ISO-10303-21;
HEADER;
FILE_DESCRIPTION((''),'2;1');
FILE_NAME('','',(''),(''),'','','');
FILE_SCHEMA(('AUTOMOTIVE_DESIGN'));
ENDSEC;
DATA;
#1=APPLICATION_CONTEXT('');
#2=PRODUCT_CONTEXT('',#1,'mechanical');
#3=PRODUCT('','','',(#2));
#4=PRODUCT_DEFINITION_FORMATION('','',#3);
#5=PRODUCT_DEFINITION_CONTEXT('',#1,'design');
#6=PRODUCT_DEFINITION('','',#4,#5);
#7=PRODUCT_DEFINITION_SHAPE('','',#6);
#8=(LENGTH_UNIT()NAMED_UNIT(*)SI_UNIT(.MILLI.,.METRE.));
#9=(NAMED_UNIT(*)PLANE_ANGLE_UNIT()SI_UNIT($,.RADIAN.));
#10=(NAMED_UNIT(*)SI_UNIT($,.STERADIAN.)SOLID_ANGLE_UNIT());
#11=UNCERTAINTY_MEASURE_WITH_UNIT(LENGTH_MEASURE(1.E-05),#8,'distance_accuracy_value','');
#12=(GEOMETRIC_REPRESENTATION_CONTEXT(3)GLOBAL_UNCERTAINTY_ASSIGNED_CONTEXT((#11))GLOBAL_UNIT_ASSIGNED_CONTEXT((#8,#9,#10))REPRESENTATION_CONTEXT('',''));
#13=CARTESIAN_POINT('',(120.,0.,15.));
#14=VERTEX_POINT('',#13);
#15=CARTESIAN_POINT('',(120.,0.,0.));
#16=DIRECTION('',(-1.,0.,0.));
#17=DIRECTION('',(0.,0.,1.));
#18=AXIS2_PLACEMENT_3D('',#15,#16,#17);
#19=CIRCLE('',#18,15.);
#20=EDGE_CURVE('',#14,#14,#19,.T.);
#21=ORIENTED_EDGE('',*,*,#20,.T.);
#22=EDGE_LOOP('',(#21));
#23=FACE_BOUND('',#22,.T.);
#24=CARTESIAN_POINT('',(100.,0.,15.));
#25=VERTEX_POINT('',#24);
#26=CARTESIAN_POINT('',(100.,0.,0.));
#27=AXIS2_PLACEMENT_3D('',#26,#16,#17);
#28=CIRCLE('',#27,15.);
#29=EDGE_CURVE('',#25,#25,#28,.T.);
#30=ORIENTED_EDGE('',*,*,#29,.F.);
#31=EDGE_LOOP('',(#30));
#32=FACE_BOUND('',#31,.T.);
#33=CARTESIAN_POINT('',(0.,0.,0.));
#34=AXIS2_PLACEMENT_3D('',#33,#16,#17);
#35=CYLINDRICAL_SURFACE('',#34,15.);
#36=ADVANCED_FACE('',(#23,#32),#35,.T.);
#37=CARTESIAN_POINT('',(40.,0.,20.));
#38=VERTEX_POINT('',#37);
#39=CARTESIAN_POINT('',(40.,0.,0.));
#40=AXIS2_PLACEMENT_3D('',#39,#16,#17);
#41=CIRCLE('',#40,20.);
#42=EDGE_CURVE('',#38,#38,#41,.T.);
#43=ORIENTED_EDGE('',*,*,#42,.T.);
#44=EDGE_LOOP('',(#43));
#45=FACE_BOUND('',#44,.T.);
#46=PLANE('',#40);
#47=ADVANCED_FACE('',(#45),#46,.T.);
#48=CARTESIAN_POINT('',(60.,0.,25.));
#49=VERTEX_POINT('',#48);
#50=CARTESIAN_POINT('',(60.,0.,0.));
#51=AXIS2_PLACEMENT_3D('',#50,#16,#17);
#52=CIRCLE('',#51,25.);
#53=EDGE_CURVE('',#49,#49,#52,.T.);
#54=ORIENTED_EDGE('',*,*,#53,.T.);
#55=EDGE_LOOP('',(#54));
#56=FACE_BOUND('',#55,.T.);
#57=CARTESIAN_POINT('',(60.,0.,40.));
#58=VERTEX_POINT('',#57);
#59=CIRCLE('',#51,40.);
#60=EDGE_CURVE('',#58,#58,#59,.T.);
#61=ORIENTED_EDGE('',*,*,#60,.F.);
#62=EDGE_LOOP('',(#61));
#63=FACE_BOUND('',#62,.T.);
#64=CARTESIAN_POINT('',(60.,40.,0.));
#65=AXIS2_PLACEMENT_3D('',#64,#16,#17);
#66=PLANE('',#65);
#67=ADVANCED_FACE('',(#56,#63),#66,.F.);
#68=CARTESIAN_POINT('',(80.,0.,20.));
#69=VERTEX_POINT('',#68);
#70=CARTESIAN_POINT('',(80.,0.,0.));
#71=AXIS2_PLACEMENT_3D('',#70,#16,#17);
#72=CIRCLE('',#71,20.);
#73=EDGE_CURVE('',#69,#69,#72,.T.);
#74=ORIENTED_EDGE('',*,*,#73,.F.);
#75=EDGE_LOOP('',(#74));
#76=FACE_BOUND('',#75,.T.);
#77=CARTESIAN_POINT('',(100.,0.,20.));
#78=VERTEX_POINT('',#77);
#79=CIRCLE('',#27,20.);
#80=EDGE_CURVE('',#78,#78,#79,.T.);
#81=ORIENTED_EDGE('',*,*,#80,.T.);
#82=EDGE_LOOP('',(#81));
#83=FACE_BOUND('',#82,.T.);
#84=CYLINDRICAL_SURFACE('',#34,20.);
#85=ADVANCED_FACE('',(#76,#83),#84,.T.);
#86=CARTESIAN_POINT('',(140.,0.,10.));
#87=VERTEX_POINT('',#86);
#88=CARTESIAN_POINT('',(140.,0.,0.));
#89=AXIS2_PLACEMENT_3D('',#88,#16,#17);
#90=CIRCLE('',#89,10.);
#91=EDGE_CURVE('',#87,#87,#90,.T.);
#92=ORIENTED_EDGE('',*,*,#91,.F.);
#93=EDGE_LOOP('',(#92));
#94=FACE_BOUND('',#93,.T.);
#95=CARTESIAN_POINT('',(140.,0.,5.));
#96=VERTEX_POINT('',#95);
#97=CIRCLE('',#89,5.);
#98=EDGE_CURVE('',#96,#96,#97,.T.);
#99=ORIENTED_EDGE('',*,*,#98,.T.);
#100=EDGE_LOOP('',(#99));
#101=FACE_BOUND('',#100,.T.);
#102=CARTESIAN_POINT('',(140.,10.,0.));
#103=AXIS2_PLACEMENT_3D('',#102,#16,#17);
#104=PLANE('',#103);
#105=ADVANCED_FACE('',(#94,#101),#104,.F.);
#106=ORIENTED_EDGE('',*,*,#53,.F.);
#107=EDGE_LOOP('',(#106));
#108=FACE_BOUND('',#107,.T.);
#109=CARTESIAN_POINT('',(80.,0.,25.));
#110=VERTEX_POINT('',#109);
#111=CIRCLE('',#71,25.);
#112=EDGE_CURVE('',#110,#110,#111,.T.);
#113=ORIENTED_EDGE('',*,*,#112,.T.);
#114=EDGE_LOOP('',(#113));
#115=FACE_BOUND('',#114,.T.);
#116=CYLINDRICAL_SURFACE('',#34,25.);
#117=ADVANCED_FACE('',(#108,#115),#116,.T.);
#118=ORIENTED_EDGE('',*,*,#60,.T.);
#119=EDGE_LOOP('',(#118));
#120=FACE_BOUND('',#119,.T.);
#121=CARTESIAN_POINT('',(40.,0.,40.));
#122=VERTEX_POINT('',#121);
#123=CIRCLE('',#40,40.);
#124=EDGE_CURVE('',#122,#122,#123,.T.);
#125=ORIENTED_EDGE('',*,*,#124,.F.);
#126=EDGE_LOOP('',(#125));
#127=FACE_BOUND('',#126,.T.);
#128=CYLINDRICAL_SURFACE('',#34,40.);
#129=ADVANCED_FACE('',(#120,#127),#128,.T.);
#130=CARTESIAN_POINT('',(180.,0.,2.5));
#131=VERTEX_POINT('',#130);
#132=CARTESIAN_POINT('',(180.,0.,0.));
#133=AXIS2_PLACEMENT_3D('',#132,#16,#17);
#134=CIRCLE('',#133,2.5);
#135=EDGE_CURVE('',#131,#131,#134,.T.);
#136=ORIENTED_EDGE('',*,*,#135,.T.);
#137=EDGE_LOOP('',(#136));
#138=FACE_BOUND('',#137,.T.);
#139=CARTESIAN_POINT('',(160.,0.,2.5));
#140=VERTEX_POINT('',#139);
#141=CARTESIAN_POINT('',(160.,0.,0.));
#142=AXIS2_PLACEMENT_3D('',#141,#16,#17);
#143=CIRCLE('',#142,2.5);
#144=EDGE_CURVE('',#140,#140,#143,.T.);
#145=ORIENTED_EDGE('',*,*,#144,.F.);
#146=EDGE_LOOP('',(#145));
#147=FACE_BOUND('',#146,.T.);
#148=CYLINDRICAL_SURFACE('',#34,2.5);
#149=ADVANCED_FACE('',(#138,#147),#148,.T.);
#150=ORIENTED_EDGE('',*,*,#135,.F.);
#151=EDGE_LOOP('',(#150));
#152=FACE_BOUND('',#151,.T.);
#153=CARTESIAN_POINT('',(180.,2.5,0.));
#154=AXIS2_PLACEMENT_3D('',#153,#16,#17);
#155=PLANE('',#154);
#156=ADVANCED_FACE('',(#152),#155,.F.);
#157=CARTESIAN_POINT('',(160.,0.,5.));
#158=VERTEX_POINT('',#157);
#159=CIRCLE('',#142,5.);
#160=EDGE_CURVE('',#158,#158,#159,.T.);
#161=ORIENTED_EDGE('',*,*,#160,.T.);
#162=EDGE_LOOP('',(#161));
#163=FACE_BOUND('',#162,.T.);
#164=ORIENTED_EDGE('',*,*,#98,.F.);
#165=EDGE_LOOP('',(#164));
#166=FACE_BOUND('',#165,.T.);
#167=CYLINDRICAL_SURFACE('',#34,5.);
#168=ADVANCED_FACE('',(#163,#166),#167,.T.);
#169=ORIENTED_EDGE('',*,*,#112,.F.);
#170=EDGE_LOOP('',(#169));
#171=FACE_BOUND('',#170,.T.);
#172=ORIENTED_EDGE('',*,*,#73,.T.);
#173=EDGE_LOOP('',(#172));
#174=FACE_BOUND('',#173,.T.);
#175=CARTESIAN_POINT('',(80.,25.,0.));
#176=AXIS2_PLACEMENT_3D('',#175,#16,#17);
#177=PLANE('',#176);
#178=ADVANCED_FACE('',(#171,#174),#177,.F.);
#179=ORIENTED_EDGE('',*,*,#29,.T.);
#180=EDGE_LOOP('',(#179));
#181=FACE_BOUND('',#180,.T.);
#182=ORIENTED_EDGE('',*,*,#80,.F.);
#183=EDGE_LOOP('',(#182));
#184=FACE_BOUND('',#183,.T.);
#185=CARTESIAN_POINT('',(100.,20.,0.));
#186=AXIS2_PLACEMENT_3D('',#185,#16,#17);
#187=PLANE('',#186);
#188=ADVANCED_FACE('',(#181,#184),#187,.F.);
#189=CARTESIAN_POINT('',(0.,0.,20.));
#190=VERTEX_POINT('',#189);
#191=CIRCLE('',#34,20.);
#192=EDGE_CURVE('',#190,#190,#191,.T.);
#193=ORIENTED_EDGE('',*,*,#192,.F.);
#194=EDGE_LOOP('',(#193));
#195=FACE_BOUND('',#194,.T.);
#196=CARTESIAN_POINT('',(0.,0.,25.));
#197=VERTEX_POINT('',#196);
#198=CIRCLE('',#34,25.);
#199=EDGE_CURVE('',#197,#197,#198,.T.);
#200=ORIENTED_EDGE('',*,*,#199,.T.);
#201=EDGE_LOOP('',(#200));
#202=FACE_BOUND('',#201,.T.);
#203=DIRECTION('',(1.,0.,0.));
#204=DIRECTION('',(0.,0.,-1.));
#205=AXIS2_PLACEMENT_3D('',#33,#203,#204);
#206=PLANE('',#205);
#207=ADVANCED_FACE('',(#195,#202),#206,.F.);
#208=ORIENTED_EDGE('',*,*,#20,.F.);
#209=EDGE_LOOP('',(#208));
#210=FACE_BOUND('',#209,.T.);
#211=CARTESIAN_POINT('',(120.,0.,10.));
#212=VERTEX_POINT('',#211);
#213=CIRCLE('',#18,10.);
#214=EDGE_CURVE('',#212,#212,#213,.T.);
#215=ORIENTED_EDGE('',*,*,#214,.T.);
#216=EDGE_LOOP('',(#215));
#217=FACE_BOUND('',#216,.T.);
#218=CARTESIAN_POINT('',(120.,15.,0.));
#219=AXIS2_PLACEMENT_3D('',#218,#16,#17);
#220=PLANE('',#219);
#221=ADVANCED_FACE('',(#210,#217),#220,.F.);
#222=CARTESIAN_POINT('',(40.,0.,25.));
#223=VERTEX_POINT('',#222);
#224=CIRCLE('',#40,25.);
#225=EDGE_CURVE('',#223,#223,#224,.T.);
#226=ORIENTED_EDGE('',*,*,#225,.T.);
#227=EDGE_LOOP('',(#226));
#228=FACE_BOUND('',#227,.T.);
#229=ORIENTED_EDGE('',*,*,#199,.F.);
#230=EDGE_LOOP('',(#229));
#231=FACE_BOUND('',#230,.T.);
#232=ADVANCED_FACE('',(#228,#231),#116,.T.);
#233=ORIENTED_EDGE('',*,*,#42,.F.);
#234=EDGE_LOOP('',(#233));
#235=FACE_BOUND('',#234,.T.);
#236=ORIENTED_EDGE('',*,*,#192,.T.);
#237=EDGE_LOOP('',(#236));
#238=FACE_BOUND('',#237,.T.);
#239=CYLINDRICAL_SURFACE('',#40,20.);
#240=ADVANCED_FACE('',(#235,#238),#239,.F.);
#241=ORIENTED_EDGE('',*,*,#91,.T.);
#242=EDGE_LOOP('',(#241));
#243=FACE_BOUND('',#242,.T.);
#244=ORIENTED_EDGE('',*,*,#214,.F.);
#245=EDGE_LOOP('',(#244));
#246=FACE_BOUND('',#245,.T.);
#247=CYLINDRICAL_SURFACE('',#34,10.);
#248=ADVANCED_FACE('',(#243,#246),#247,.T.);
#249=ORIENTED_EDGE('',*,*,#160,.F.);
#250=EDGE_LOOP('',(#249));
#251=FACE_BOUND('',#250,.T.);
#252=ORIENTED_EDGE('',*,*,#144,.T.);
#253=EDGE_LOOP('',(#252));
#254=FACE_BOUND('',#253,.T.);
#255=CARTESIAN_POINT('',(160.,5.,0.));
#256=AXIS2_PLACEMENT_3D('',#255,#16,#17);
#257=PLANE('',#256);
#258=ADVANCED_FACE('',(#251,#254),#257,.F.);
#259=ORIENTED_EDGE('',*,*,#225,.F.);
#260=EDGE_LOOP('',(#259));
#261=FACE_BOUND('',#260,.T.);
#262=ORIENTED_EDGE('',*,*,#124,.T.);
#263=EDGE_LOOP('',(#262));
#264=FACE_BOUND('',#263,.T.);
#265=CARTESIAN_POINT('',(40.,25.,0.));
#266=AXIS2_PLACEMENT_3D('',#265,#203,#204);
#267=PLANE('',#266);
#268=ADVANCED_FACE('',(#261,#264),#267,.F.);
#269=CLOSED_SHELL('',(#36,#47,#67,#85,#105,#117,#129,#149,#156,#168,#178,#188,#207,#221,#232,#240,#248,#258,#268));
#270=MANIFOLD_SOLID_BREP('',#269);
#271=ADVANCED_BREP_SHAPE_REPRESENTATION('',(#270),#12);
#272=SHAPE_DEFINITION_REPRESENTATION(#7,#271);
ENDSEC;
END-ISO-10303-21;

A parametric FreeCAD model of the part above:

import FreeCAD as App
import Part
import Sketcher

V = App.Vector
Q = App.Units.Quantity


def add_polygon(sketch, points):
    """Adds a closed chain of lines whose ends are joined by coincident constraints."""
    first, n = sketch.GeometryCount, len(points)
    for a, b in zip(points, points[1:] + points[:1]):
        sketch.addGeometry(Part.LineSegment(App.Vector(*a, 0), App.Vector(*b, 0)), False)
    for i in range(n):
        sketch.addConstraint(Sketcher.Constraint("Coincident", first + i, 2, first + (i + 1) % n, 1))

doc = App.newDocument("Part")
body = doc.addObject("PartDesign::Body", "Body")

sketch1 = body.newObject("Sketcher::SketchObject", "Sketch")
sketch1.AttachmentSupport = (doc.getObject("XY_Plane"), [""])
sketch1.MapMode = "FlatFace"
add_polygon(sketch1, [(0, 25), (0, 0), (180, 0), (180, 2.5), (160, 2.5), (160, 5), (140, 5), (140, 10), (120, 10), (120, 15), (100, 15), (100, 20), (80, 20), (80, 25), (60, 25), (60, 40), (40, 40), (40, 25)])
sketch1.addConstraint(Sketcher.Constraint("Vertical", 0))
sketch1.addConstraint(Sketcher.Constraint("Horizontal", 1))
sketch1.addConstraint(Sketcher.Constraint("Vertical", 2))
sketch1.addConstraint(Sketcher.Constraint("Horizontal", 3))
sketch1.addConstraint(Sketcher.Constraint("Vertical", 4))
sketch1.addConstraint(Sketcher.Constraint("Horizontal", 5))
sketch1.addConstraint(Sketcher.Constraint("Vertical", 6))
sketch1.addConstraint(Sketcher.Constraint("Horizontal", 7))
sketch1.addConstraint(Sketcher.Constraint("Vertical", 8))
sketch1.addConstraint(Sketcher.Constraint("Horizontal", 9))
sketch1.addConstraint(Sketcher.Constraint("Vertical", 10))
sketch1.addConstraint(Sketcher.Constraint("Horizontal", 11))
sketch1.addConstraint(Sketcher.Constraint("Vertical", 12))
sketch1.addConstraint(Sketcher.Constraint("Horizontal", 13))
sketch1.addConstraint(Sketcher.Constraint("Vertical", 14))
sketch1.addConstraint(Sketcher.Constraint("Horizontal", 15))
sketch1.addConstraint(Sketcher.Constraint("Vertical", 16))
sketch1.addConstraint(Sketcher.Constraint("Horizontal", 17))
sketch1.addConstraint(Sketcher.Constraint("Coincident", 0, 2, -1, 1))
sketch1.addConstraint(Sketcher.Constraint("Horizontal", 13, 2, 16, 2))
sketch1.addConstraint(Sketcher.Constraint("Equal", 3, 5))
sketch1.addConstraint(Sketcher.Constraint("Equal", 5, 7))
sketch1.addConstraint(Sketcher.Constraint("Equal", 7, 9))
sketch1.addConstraint(Sketcher.Constraint("Equal", 9, 11))
sketch1.addConstraint(Sketcher.Constraint("Equal", 11, 13))
sketch1.addConstraint(Sketcher.Constraint("Equal", 13, 15))
sketch1.addConstraint(Sketcher.Constraint("Equal", 2, 4))
sketch1.addConstraint(Sketcher.Constraint("Equal", 6, 8))
sketch1.addConstraint(Sketcher.Constraint("Equal", 8, 10))
sketch1.addConstraint(Sketcher.Constraint("Equal", 10, 12))
sketch1.addConstraint(Sketcher.Constraint("DistanceX", 1, 1, 1, 2, Q("180 mm")))
sketch1.addConstraint(Sketcher.Constraint("DistanceX", 3, 2, 3, 1, Q("20 mm")))
sketch1.addConstraint(Sketcher.Constraint("DistanceY", 0, 2, 0, 1, Q("25 mm")))
sketch1.addConstraint(Sketcher.Constraint("DistanceY", 6, 1, 6, 2, Q("5 mm")))
sketch1.addConstraint(Sketcher.Constraint("DistanceY", 14, 1, 14, 2, Q("15 mm")))
revolution = body.newObject("PartDesign::Revolution", "Revolution")
revolution.Profile = sketch1
revolution.ReferenceAxis = (sketch1, ["H_Axis"])
revolution.Angle = 360

sketch2 = body.newObject("Sketcher::SketchObject", "Sketch001")
sketch2.AttachmentSupport = (doc.getObject("YZ_Plane"), [""])
sketch2.MapMode = "FlatFace"
sketch2.addGeometry(Part.Circle(V(0, 0, 0), V(0, 0, 1), 20), False)
sketch2.addConstraint(Sketcher.Constraint("Coincident", 0, 3, -1, 1))
sketch2.addConstraint(Sketcher.Constraint("Diameter", 0, Q("40 mm")))
pocket1 = body.newObject("PartDesign::Pocket", "Pocket")
pocket1.Profile = sketch2
pocket1.Length = 40
pocket1.Reversed = True

doc.recompute()
